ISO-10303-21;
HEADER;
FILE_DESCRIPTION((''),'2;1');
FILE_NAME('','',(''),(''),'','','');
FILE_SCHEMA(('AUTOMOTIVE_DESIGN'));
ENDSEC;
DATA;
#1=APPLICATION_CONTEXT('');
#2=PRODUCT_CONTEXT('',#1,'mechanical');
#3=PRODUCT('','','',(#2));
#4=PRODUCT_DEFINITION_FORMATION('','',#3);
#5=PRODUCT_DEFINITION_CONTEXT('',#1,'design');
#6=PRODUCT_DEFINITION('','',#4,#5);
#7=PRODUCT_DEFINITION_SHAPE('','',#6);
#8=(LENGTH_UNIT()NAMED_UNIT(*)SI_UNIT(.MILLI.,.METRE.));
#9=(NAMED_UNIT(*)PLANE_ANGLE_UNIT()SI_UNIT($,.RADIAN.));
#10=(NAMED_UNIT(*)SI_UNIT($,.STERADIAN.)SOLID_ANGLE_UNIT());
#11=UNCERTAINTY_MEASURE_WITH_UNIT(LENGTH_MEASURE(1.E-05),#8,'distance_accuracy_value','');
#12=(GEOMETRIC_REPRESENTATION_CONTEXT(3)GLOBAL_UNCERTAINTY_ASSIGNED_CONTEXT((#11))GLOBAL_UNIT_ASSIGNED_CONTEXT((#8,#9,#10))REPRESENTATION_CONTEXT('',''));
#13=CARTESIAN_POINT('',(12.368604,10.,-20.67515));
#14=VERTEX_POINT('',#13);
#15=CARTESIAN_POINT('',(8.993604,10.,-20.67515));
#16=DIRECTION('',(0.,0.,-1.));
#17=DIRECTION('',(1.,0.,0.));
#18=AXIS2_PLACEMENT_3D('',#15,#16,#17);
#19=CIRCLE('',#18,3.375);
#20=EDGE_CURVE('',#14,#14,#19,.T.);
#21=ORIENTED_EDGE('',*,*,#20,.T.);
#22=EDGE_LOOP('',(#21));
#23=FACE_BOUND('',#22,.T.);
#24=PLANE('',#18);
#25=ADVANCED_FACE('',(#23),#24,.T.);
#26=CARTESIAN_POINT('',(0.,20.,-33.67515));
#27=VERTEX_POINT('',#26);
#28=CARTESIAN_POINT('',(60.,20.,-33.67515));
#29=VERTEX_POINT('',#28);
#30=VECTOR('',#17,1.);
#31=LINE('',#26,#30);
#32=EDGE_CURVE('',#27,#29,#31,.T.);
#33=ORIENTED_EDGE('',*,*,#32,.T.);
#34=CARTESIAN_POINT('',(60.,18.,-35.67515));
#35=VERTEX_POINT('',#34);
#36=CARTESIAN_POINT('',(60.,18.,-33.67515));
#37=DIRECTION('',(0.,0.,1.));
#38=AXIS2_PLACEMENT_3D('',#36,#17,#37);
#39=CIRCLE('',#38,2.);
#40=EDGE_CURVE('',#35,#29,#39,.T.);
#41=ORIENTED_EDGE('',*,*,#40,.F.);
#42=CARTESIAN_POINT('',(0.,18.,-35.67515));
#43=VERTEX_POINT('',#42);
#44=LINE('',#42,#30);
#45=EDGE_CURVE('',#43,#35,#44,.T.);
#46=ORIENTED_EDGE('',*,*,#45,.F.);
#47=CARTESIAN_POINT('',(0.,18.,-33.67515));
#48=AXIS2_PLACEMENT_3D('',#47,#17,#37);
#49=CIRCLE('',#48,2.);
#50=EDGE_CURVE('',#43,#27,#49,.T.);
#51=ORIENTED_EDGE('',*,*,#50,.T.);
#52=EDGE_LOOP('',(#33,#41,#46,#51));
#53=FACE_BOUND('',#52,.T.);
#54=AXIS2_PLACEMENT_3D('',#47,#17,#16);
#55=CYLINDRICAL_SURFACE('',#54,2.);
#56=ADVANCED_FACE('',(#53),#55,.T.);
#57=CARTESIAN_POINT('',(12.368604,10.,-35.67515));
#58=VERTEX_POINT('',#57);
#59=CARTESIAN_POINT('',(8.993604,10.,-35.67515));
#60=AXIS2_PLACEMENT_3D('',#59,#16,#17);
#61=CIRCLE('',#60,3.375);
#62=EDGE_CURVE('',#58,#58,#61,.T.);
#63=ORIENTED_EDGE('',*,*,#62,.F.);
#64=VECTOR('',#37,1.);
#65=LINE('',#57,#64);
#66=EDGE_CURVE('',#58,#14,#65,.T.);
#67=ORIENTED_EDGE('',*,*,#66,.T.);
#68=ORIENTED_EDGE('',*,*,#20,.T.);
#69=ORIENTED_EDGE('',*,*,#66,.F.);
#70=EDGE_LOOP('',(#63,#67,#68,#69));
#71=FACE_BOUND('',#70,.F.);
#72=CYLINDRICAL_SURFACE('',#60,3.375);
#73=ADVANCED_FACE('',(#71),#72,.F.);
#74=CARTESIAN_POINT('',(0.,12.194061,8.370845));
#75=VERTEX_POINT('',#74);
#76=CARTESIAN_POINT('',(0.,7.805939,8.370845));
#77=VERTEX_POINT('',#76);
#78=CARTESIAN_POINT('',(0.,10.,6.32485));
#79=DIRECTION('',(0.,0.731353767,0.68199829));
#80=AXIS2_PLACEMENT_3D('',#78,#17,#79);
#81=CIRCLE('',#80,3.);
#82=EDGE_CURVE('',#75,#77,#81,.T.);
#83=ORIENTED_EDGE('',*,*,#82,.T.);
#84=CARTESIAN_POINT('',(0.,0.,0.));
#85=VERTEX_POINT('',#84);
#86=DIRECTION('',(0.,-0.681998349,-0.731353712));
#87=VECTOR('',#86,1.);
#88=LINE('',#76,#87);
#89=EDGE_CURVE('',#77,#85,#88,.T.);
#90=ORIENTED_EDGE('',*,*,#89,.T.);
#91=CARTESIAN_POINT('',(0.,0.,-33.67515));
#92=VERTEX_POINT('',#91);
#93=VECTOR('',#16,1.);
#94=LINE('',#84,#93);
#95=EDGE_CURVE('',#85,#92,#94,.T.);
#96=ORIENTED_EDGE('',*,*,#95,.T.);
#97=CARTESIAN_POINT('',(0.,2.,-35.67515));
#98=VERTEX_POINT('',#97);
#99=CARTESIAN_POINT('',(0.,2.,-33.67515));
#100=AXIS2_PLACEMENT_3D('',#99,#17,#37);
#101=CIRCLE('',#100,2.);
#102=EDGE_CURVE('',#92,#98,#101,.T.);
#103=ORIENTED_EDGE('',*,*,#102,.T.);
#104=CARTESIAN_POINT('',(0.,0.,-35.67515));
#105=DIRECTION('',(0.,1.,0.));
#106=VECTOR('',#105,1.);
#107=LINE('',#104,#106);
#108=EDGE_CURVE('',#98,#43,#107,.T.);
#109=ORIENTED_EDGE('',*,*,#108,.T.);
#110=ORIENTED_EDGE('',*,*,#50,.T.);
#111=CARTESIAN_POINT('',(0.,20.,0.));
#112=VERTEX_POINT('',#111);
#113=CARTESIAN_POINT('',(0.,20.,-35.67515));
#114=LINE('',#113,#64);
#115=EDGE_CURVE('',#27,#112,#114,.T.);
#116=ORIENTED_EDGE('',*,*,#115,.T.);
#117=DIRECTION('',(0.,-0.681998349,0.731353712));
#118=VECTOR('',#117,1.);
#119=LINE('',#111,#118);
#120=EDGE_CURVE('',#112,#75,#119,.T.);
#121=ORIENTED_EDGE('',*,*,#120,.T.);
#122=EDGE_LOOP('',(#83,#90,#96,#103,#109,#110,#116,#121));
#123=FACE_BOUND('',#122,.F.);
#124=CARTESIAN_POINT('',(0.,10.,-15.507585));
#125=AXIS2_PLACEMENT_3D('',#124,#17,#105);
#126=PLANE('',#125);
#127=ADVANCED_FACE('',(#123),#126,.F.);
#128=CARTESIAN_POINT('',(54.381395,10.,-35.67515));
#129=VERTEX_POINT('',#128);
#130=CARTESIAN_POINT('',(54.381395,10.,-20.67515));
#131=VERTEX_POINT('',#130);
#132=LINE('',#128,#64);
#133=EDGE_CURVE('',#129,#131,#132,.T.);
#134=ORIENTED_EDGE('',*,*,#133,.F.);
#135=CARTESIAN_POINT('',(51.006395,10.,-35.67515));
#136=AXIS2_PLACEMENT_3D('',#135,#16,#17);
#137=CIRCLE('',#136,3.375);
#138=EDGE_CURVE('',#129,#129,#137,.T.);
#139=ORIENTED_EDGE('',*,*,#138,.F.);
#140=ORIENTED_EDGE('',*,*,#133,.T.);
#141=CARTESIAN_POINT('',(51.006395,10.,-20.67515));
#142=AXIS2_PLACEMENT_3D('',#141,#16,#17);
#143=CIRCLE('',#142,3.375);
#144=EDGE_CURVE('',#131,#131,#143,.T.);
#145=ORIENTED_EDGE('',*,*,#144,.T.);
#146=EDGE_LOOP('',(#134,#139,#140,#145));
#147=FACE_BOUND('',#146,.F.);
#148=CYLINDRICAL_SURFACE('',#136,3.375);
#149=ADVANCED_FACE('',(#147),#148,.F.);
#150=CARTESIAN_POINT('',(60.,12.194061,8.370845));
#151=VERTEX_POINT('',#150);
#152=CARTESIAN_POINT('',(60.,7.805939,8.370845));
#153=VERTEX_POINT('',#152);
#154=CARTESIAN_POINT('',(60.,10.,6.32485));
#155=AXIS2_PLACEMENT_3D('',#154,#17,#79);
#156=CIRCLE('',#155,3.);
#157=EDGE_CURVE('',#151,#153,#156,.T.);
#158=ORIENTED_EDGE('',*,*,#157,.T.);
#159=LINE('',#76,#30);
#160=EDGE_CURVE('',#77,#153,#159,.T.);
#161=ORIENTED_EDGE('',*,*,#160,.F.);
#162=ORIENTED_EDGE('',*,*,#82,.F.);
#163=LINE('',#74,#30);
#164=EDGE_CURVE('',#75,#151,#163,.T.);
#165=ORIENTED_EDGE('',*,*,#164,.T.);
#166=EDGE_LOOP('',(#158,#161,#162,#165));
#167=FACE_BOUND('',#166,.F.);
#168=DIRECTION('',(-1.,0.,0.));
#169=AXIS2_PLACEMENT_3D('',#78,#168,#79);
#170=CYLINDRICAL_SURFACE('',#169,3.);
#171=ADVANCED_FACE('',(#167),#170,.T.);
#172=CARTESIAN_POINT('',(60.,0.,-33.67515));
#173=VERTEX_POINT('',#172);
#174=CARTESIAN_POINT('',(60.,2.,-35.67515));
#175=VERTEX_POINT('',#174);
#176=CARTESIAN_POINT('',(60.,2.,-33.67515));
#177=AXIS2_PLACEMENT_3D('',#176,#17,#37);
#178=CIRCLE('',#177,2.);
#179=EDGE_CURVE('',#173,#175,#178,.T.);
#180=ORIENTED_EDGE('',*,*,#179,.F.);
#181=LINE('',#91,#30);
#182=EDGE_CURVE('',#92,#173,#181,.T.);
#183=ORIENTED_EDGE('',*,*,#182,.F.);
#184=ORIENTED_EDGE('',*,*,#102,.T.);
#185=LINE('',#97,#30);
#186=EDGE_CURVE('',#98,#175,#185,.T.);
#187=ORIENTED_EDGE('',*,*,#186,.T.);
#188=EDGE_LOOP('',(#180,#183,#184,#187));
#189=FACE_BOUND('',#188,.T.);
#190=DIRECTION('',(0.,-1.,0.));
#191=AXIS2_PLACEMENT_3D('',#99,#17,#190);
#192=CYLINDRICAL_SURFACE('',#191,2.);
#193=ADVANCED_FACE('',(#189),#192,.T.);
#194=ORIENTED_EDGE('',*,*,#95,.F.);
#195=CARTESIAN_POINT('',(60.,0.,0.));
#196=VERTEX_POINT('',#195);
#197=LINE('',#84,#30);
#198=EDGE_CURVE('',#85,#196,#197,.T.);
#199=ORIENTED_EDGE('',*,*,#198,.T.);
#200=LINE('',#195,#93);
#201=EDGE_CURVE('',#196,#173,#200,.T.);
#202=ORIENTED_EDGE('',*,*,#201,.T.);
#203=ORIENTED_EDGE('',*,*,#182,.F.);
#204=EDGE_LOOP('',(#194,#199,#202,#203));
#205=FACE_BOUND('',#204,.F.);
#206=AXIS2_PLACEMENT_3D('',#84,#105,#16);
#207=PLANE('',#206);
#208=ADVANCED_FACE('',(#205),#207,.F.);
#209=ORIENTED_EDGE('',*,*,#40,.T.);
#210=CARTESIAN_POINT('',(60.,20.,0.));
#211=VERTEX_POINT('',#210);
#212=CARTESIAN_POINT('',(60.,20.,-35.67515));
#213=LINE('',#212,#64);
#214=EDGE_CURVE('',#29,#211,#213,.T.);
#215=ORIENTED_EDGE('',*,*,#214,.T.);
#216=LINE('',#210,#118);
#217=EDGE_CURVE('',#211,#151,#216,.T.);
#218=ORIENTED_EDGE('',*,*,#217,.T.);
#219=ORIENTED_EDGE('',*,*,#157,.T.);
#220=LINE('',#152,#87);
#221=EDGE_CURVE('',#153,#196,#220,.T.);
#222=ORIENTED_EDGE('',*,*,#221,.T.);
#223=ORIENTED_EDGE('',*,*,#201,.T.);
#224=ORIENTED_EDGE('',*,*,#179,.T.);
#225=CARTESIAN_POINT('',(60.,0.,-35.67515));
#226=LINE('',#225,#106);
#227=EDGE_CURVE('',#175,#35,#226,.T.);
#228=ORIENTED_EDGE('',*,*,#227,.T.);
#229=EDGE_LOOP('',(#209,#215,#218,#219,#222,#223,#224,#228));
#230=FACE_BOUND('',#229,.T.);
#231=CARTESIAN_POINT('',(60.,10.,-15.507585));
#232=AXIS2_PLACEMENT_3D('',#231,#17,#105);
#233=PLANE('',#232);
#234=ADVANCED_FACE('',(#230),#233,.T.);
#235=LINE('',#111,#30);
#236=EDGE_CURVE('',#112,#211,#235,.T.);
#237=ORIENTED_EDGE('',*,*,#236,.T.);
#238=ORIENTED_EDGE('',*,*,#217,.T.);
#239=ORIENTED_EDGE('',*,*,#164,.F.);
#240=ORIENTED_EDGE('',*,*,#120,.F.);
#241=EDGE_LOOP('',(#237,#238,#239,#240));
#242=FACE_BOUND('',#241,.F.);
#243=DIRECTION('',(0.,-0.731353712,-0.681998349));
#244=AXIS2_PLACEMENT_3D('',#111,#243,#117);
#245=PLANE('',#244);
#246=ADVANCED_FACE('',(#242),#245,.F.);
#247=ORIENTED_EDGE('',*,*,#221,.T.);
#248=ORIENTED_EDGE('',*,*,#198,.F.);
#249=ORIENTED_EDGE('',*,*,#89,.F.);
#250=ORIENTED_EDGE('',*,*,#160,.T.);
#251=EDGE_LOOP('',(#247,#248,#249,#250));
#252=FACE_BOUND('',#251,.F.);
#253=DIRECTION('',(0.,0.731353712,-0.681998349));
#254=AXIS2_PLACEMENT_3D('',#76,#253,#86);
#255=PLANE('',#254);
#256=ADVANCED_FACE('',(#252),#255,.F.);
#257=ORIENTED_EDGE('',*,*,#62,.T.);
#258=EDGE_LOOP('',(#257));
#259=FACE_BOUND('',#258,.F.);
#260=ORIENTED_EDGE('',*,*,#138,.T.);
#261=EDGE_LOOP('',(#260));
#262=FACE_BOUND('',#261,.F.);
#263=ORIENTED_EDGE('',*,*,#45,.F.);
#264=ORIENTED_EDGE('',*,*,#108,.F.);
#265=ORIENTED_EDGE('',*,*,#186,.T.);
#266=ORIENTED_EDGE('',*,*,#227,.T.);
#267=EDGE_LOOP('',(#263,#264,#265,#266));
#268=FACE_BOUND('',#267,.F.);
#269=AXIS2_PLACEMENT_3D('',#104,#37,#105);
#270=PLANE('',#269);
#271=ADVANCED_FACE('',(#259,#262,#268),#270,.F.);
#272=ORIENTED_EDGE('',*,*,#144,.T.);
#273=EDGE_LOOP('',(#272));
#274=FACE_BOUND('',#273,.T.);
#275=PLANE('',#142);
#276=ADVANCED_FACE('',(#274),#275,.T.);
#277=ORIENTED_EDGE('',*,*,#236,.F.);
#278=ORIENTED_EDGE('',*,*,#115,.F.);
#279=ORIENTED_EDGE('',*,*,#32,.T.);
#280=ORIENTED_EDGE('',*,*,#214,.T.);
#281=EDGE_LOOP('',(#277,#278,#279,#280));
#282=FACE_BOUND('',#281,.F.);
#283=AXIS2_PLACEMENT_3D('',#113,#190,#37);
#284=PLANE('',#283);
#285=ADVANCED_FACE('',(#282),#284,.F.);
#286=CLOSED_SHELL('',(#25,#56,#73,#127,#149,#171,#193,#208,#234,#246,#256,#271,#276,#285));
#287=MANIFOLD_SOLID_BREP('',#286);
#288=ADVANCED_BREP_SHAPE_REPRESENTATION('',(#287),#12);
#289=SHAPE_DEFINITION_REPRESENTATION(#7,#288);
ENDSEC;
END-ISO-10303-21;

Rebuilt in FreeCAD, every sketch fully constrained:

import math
import FreeCAD as App
import Part
import Sketcher

V = App.Vector
Q = App.Units.Quantity


def edges_at(feature, points):
    """Names of the edges that pass closest to the given points."""
    edges = feature.Shape.Edges
    near = lambda p: min(range(len(edges)), key=lambda i: edges[i].distToShape(Part.Vertex(*p))[0])
    return sorted({f"Edge{near(p) + 1}" for p in points})

doc = App.newDocument("Part")
body = doc.addObject("PartDesign::Body", "Body")

sketch1 = body.newObject("Sketcher::SketchObject", "Sketch")
sketch1.AttachmentSupport = (doc.getObject("YZ_Plane"), [""])
sketch1.MapMode = "FlatFace"
sketch1.addGeometry([
    Part.LineSegment(V(0, 0, 0), V(0, -35.7, 0)),
    Part.LineSegment(V(0, -35.7, 0), V(20, -35.7, 0)),
    Part.LineSegment(V(20, -35.7, 0), V(20, 0, 0)),
    Part.LineSegment(V(20, 0, 0), V(12.2, 8.4, 0)),
    Part.ArcOfCircle(Part.Circle(V(10, 6.3, 0), V(0, 0, 1), 3), math.radians(43), math.radians(137)),
    Part.LineSegment(V(7.8, 8.4, 0), V(0, 0, 0)),
], False)
sketch1.addConstraint([
    Sketcher.Constraint("Coincident", 0, 2, 1, 1),
    Sketcher.Constraint("Coincident", 1, 2, 2, 1),
    Sketcher.Constraint("Coincident", 2, 2, 3, 1),
    Sketcher.Constraint("Tangent", 3, 2, 4, 1),
    Sketcher.Constraint("Tangent", 4, 2, 5, 1),
    Sketcher.Constraint("Coincident", 5, 2, 0, 1),
    Sketcher.Constraint("Vertical", 0),
    Sketcher.Constraint("Horizontal", 1),
    Sketcher.Constraint("Vertical", 2),
    Sketcher.Constraint("Coincident", 5, 2, -1, 1),
    Sketcher.Constraint("PointOnObject", 2, 2, -1),
    Sketcher.Constraint("Horizontal", 3, 2, 4, 2),
    Sketcher.Constraint("Radius", 4, Q("3 mm")),
    Sketcher.Constraint("DistanceX", 1, 1, 1, 2, Q("20 mm")),
    Sketcher.Constraint("Angle", 3, Q("132.999999 deg")),
    Sketcher.Constraint("DistanceY", 0, 2, 4, 3, Q("42 mm")),
])
pad1 = body.newObject("PartDesign::Pad", "Pad")
pad1.Profile = sketch1
pad1.Length = 60

sketch2 = body.newObject("Sketcher::SketchObject", "Sketch001")
sketch2.AttachmentSupport = (doc.getObject("XY_Plane"), [""])
sketch2.MapMode = "FlatFace"
sketch2.AttachmentOffset = App.Placement(V(0, 0, -35.67515), App.Rotation())
sketch2.addGeometry([
    Part.Circle(V(9, 10, 0), V(0, 0, 1), 3.4),
    Part.Circle(V(51, 10, 0), V(0, 0, 1), 3.4),
], False)
sketch2.addConstraint([
    Sketcher.Constraint("Equal", 0, 1),
    Sketcher.Constraint("Horizontal", 0, 3, 1, 3),
    Sketcher.Constraint("Diameter", 0, Q("6.75 mm")),
    Sketcher.Constraint("DistanceY", -1, 1, 0, 3, Q("10 mm")),
    Sketcher.Constraint("DistanceX", 0, 3, 1, 3, Q("42.012791 mm")),
    Sketcher.Constraint("DistanceX", -1, 1, 0, 3, Q("8.993604 mm")),
])
pocket1 = body.newObject("PartDesign::Pocket", "Pocket")
pocket1.Profile = sketch2
pocket1.Length = 15
pocket1.Reversed = True
doc.recompute()

fillet = body.newObject("PartDesign::Fillet", "Fillet")
fillet.Base = (pocket1, edges_at(pocket1, [(30, 20, -35.675), (30, 0, -35.675)]))
fillet.Radius = 2

doc.recompute()
